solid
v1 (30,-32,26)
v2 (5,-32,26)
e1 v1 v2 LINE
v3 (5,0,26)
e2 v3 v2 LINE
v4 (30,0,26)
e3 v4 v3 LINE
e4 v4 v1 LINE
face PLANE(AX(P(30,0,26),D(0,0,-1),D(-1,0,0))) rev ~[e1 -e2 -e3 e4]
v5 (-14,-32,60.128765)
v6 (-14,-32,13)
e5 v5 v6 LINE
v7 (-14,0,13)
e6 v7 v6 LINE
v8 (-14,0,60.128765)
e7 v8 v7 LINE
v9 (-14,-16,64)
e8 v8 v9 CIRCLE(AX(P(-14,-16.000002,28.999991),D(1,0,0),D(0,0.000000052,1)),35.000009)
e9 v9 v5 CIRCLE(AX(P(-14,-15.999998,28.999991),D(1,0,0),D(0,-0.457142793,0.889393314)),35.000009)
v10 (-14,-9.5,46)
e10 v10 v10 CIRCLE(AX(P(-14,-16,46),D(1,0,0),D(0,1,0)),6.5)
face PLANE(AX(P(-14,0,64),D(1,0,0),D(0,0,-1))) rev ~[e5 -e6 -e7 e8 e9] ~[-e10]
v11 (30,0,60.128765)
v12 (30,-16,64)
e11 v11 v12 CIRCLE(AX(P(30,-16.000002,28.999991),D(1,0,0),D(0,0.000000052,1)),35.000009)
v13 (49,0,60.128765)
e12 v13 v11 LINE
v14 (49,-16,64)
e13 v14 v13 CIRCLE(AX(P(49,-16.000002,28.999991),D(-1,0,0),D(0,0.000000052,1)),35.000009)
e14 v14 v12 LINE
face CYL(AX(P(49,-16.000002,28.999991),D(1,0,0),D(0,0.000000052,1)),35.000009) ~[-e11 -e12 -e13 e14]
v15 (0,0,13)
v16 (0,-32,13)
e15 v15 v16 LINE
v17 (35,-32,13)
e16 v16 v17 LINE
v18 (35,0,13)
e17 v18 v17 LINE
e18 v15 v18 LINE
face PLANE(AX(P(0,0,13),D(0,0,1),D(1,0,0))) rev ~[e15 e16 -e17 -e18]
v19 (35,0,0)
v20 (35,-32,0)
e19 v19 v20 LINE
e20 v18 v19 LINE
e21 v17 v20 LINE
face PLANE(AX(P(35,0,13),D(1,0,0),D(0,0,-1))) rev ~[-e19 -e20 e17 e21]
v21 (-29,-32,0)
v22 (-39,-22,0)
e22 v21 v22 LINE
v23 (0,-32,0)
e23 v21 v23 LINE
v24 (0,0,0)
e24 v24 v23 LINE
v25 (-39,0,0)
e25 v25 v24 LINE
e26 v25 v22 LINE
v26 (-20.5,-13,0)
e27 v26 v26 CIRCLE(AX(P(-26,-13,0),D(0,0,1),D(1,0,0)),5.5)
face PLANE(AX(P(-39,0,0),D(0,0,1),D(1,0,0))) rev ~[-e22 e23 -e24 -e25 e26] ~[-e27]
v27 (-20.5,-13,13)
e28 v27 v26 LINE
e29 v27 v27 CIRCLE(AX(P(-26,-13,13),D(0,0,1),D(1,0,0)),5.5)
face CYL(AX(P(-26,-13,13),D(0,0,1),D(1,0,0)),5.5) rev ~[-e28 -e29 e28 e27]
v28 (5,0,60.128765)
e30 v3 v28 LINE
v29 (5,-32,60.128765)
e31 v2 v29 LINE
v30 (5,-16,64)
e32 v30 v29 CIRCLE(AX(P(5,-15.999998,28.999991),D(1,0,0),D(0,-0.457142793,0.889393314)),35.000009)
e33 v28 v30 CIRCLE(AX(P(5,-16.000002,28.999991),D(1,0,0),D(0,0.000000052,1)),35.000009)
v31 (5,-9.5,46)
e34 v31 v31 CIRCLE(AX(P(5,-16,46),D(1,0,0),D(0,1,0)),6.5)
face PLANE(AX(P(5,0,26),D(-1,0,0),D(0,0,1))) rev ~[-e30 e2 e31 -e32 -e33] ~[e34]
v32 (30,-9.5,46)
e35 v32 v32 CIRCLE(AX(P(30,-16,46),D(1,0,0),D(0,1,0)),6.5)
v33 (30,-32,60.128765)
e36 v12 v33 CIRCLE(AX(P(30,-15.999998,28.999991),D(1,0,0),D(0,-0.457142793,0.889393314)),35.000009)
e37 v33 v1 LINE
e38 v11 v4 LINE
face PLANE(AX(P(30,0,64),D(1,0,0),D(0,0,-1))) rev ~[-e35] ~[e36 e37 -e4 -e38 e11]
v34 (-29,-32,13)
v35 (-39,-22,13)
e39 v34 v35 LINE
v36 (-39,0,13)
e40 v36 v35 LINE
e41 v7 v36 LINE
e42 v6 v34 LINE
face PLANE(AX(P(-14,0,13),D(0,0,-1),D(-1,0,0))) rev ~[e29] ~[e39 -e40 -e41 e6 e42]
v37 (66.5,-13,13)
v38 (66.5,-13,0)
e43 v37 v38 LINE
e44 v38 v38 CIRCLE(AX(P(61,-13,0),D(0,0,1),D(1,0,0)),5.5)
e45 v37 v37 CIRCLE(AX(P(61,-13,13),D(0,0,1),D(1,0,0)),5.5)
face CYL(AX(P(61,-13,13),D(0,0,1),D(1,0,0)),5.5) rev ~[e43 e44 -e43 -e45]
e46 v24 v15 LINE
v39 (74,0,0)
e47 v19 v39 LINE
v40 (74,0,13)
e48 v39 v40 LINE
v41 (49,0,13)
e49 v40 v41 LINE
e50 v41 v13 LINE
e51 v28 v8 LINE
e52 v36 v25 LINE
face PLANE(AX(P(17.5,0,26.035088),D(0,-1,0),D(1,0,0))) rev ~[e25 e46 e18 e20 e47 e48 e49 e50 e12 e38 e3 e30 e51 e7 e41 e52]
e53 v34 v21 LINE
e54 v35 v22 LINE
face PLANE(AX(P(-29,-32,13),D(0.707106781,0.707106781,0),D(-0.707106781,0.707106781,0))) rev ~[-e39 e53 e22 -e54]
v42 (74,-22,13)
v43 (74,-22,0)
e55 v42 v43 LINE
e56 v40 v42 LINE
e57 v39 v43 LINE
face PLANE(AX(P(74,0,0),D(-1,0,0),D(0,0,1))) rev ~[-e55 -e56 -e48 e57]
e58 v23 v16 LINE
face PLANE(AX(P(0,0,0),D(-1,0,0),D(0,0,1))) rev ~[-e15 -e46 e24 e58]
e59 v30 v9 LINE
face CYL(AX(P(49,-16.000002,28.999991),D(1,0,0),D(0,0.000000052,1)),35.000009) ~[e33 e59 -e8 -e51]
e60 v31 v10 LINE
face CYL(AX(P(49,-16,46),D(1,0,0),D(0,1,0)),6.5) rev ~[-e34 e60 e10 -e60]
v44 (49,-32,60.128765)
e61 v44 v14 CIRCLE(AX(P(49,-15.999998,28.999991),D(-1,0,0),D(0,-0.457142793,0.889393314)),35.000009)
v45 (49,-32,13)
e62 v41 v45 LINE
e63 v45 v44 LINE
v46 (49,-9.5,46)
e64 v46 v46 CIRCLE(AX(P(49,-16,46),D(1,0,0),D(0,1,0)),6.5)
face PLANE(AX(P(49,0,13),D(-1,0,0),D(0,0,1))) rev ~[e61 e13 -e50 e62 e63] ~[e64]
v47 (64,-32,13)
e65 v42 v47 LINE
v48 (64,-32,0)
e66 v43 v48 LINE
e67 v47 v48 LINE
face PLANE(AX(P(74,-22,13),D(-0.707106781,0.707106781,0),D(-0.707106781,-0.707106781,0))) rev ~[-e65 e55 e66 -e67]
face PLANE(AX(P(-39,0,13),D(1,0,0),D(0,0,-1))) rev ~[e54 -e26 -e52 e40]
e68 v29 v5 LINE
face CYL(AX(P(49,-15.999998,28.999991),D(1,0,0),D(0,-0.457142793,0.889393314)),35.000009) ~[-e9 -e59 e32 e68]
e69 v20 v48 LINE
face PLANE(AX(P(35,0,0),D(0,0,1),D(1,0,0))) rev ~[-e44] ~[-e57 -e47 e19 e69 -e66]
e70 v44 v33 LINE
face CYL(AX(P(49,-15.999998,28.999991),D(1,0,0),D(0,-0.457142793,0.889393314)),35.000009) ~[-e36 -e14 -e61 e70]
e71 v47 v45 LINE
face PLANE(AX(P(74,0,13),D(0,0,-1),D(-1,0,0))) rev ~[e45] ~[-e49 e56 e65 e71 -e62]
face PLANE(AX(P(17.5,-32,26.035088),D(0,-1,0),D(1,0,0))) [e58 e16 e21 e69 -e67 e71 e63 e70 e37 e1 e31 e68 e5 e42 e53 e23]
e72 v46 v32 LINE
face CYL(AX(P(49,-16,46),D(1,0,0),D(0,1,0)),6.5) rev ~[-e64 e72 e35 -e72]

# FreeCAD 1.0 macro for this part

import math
import FreeCAD as App
import Part
import Sketcher
from FreeCAD import Vector

doc = App.newDocument("Part")
params = doc.addObject("Spreadsheet::Sheet", "Params")
for row, (alias, value) in enumerate([
    ("sketch1_width", "39 mm"),
    ("sketch1_width2", "35 mm"),
    ("sketch1_width3", "25 mm"),
    ("sketch1_height", "13 mm"),
    ("sketch1_height2", "51 mm"),
    ("pad1_length", "32 mm"),
    ("sketch2_width", "10 mm"),
    ("sketch3_diameter", "11 mm"),
    ("sketch4_diameter", "13 mm"),
    ("sketch5_width", "16 mm"),
    ("sketch6_width", "16 mm"),
], start=1):
    params.set(f"A{row}", alias)
    params.set(f"B{row}", "=" + value)
    params.setAlias(f"B{row}", alias)

body = doc.addObject("PartDesign::Body", "Body")

sketch1 = body.newObject("Sketcher::SketchObject", "Sketch")
sketch1.AttachmentSupport = (doc.getObject("XZ_Plane"), [""])
sketch1.MapMode = "FlatFace"
sketch1.addGeometry([
    Part.LineSegment(Vector(-39, 0, 0), Vector(0, 0, 0)),
    Part.LineSegment(Vector(0, 0, 0), Vector(0, 13, 0)),
    Part.LineSegment(Vector(0, 13, 0), Vector(35, 13, 0)),
    Part.LineSegment(Vector(35, 13, 0), Vector(35, 0, 0)),
    Part.LineSegment(Vector(35, 0, 0), Vector(74, 0, 0)),
    Part.LineSegment(Vector(74, 0, 0), Vector(74, 13, 0)),
    Part.LineSegment(Vector(74, 13, 0), Vector(49, 13, 0)),
    Part.LineSegment(Vector(49, 13, 0), Vector(49, 64, 0)),
    Part.LineSegment(Vector(49, 64, 0), Vector(30, 64, 0)),
    Part.LineSegment(Vector(30, 64, 0), Vector(30, 26, 0)),
    Part.LineSegment(Vector(30, 26, 0), Vector(5, 26, 0)),
    Part.LineSegment(Vector(5, 26, 0), Vector(5, 64, 0)),
    Part.LineSegment(Vector(5, 64, 0), Vector(-14, 64, 0)),
    Part.LineSegment(Vector(-14, 64, 0), Vector(-14, 13, 0)),
    Part.LineSegment(Vector(-14, 13, 0), Vector(-39, 13, 0)),
    Part.LineSegment(Vector(-39, 13, 0), Vector(-39, 0, 0)),
], False)
sketch1.addConstraint([
    Sketcher.Constraint("Coincident", 0, 2, 1, 1),
    Sketcher.Constraint("Coincident", 1, 2, 2, 1),
    Sketcher.Constraint("Coincident", 2, 2, 3, 1),
    Sketcher.Constraint("Coincident", 3, 2, 4, 1),
    Sketcher.Constraint("Coincident", 4, 2, 5, 1),
    Sketcher.Constraint("Coincident", 5, 2, 6, 1),
    Sketcher.Constraint("Coincident", 6, 2, 7, 1),
    Sketcher.Constraint("Coincident", 7, 2, 8, 1),
    Sketcher.Constraint("Coincident", 8, 2, 9, 1),
    Sketcher.Constraint("Coincident", 9, 2, 10, 1),
    Sketcher.Constraint("Coincident", 10, 2, 11, 1),
    Sketcher.Constraint("Coincident", 11, 2, 12, 1),
    Sketcher.Constraint("Coincident", 12, 2, 13, 1),
    Sketcher.Constraint("Coincident", 13, 2, 14, 1),
    Sketcher.Constraint("Coincident", 14, 2, 15, 1),
    Sketcher.Constraint("Coincident", 15, 2, 0, 1),
    Sketcher.Constraint("Horizontal", 0),
    Sketcher.Constraint("Vertical", 1),
    Sketcher.Constraint("Horizontal", 2),
    Sketcher.Constraint("Vertical", 3),
    Sketcher.Constraint("Horizontal", 4),
    Sketcher.Constraint("Vertical", 5),
    Sketcher.Constraint("Horizontal", 6),
    Sketcher.Constraint("Vertical", 7),
    Sketcher.Constraint("Horizontal", 8),
    Sketcher.Constraint("Vertical", 9),
    Sketcher.Constraint("Horizontal", 10),
    Sketcher.Constraint("Vertical", 11),
    Sketcher.Constraint("Horizontal", 12),
    Sketcher.Constraint("Vertical", 13),
    Sketcher.Constraint("Horizontal", 14),
    Sketcher.Constraint("Vertical", 15),
    Sketcher.Constraint("Coincident", 0, 2, -1, 1),
    Sketcher.Constraint("PointOnObject", 3, 2, -1),
    Sketcher.Constraint("Horizontal", 2, 2, 5, 2),
    Sketcher.Constraint("Horizontal", 8, 2, 11, 2),
    Sketcher.Constraint("Horizontal", 6, 2, 13, 2),
    Sketcher.Constraint("Equal", 0, 4),
    Sketcher.Constraint("Equal", 6, 10),
    Sketcher.Constraint("Equal", 8, 12),
    Sketcher.Constraint("Equal", 10, 14),
    Sketcher.Constraint("DistanceX", 0, 1, 0, 2, 39.0),
    Sketcher.Constraint("DistanceX", 2, 1, 2, 2, 35.0),
    Sketcher.Constraint("DistanceX", 6, 2, 6, 1, 25.0),
    Sketcher.Constraint("DistanceY", 1, 1, 1, 2, 13.0),
    Sketcher.Constraint("DistanceY", 7, 1, 7, 2, 51.0),
    Sketcher.Constraint("DistanceY", 9, 2, 9, 1, 38.0),
])
sketch1.setExpression("Constraints[41]", "Params.sketch1_width")
sketch1.setExpression("Constraints[42]", "Params.sketch1_width2")
sketch1.setExpression("Constraints[43]", "Params.sketch1_width3")
sketch1.setExpression("Constraints[44]", "Params.sketch1_height")
sketch1.setExpression("Constraints[45]", "Params.sketch1_height2")
pad1 = body.newObject("PartDesign::Pad", "Pad")
pad1.Profile = sketch1
pad1.setExpression("Length", "Params.pad1_length")

sketch2 = body.newObject("Sketcher::SketchObject", "Sketch001")
sketch2.AttachmentSupport = (doc.getObject("XY_Plane"), [""])
sketch2.MapMode = "FlatFace"
sketch2.AttachmentOffset = App.Placement(Vector(0, 0, 13), App.Rotation())
sketch2.addGeometry([
    Part.LineSegment(Vector(74, -22, 0), Vector(64, -32, 0)),
    Part.LineSegment(Vector(64, -32, 0), Vector(74, -32, 0)),
    Part.LineSegment(Vector(74, -32, 0), Vector(74, -22, 0)),
    Part.LineSegment(Vector(-39, -32, 0), Vector(-29, -32, 0)),
    Part.LineSegment(Vector(-29, -32, 0), Vector(-39, -22, 0)),
    Part.LineSegment(Vector(-39, -22, 0), Vector(-39, -32, 0)),
], False)
sketch2.addConstraint([
    Sketcher.Constraint("Coincident", 0, 2, 1, 1),
    Sketcher.Constraint("Coincident", 1, 2, 2, 1),
    Sketcher.Constraint("Coincident", 2, 2, 0, 1),
    Sketcher.Constraint("Coincident", 3, 2, 4, 1),
    Sketcher.Constraint("Coincident", 4, 2, 5, 1),
    Sketcher.Constraint("Coincident", 5, 2, 3, 1),
    Sketcher.Constraint("Horizontal", 1),
    Sketcher.Constraint("Vertical", 2),
    Sketcher.Constraint("Horizontal", 3),
    Sketcher.Constraint("Vertical", 5),
    Sketcher.Constraint("Perpendicular", 0, 4),
    Sketcher.Constraint("Horizontal", 1, 2, 3, 2),
    Sketcher.Constraint("Horizontal", 2, 2, 4, 2),
    Sketcher.Constraint("Equal", 1, 3),
    Sketcher.Constraint("DistanceX", 1, 1, 1, 2, 10.0),
    Sketcher.Constraint("DistanceX", -1, 1, 0, 2, 64.0),
    Sketcher.Constraint("DistanceY", 0, 2, -1, 1, 32.0),
    Sketcher.Constraint("DistanceX", 3, 2, -1, 1, 29.0),
])
sketch2.setExpression("Constraints[14]", "Params.sketch2_width")
pocket1 = body.newObject("PartDesign::Pocket", "Pocket")
pocket1.Profile = sketch2
pocket1.Type = "ThroughAll"

sketch3 = body.newObject("Sketcher::SketchObject", "Sketch002")
sketch3.AttachmentSupport = (doc.getObject("XY_Plane"), [""])
sketch3.MapMode = "FlatFace"
sketch3.AttachmentOffset = App.Placement(Vector(0, 0, 13), App.Rotation())
sketch3.addGeometry([
    Part.Circle(Vector(-26, -13, 0), Vector(0, 0, 1), 6),
    Part.Circle(Vector(61, -13, 0), Vector(0, 0, 1), 6),
], False)
sketch3.addConstraint([
    Sketcher.Constraint("Equal", 0, 1),
    Sketcher.Constraint("Horizontal", 0, 3, 1, 3),
    Sketcher.Constraint("Diameter", 0, 11.0),
    Sketcher.Constraint("DistanceX", 0, 3, -1, 1, 26.0),
    Sketcher.Constraint("DistanceY", 0, 3, -1, 1, 13.0),
    Sketcher.Constraint("DistanceX", -1, 1, 1, 3, 61.0),
])
sketch3.setExpression("Constraints[2]", "Params.sketch3_diameter")
pocket2 = body.newObject("PartDesign::Pocket", "Pocket001")
pocket2.Profile = sketch3
pocket2.Type = "ThroughAll"

sketch4 = body.newObject("Sketcher::SketchObject", "Sketch003")
sketch4.AttachmentSupport = (doc.getObject("YZ_Plane"), [""])
sketch4.MapMode = "FlatFace"
sketch4.AttachmentOffset = App.Placement(Vector(0, 0, 49), App.Rotation())
sketch4.addGeometry(Part.Circle(Vector(-16, 46, 0), Vector(0, 0, 1), 6), False)
sketch4.addConstraint([
    Sketcher.Constraint("Diameter", 0, 13.0),
    Sketcher.Constraint("DistanceX", 0, 3, -1, 1, 16.0),
    Sketcher.Constraint("DistanceY", -1, 1, 0, 3, 46.0),
])
sketch4.setExpression("Constraints[0]", "Params.sketch4_diameter")
pocket3 = body.newObject("PartDesign::Pocket", "Pocket002")
pocket3.Profile = sketch4
pocket3.Type = "ThroughAll"

sketch5 = body.newObject("Sketcher::SketchObject", "Sketch004")
sketch5.AttachmentSupport = (doc.getObject("YZ_Plane"), [""])
sketch5.MapMode = "FlatFace"
sketch5.AttachmentOffset = App.Placement(Vector(0, 0, 49), App.Rotation())
sketch5.addGeometry([
    Part.ArcOfCircle(Part.Circle(Vector(-16, 29, 0), Vector(0, 0, 1), 35), math.radians(90), math.radians(117)),
    Part.LineSegment(Vector(-16, 64, 0), Vector(-32, 64, 0)),
    Part.LineSegment(Vector(-32, 64, 0), Vector(-32, 60.1, 0)),
    Part.ArcOfCircle(Part.Circle(Vector(-16, 29, 0), Vector(0, 0, 1), 35), math.radians(63), math.radians(90)),
    Part.LineSegment(Vector(0, 60.1, 0), Vector(0, 64, 0)),
    Part.LineSegment(Vector(0, 64, 0), Vector(-16, 64, 0)),
], False)
sketch5.addConstraint([
    Sketcher.Constraint("Tangent", 0, 1, 1, 1),
    Sketcher.Constraint("Coincident", 1, 2, 2, 1),
    Sketcher.Constraint("Coincident", 2, 2, 0, 2),
    Sketcher.Constraint("Coincident", 3, 1, 4, 1),
    Sketcher.Constraint("Coincident", 4, 2, 5, 1),
    Sketcher.Constraint("Tangent", 5, 2, 3, 2),
    Sketcher.Constraint("Horizontal", 1),
    Sketcher.Constraint("Vertical", 2),
    Sketcher.Constraint("Vertical", 4),
    Sketcher.Constraint("Horizontal", 5),
    Sketcher.Constraint("Coincident", 3, 3, 0, 3),
    Sketcher.Constraint("Equal", 0, 3),
    Sketcher.Constraint("PointOnObject", 3, 1, -2),
    Sketcher.Constraint("Horizontal", 2, 2, 3, 1),
    Sketcher.Constraint("DistanceX", 1, 2, 1, 1, 16.0),
    Sketcher.Constraint("DistanceY", -1, 1, 0, 1, 64.0),
    Sketcher.Constraint("Radius", 0, 35.000009),
])
sketch5.setExpression("Constraints[14]", "Params.sketch5_width")
pocket4 = body.newObject("PartDesign::Pocket", "Pocket003")
pocket4.Profile = sketch5
pocket4.Type = "ThroughAll"

sketch6 = body.newObject("Sketcher::SketchObject", "Sketch005")
sketch6.AttachmentSupport = (doc.getObject("YZ_Plane"), [""])
sketch6.MapMode = "FlatFace"
sketch6.AttachmentOffset = App.Placement(Vector(0, 0, 49), App.Rotation())
sketch6.addGeometry([
    Part.ArcOfCircle(Part.Circle(Vector(-16, 29, 0), Vector(0, 0, 1), 35), math.radians(90), math.radians(117)),
    Part.LineSegment(Vector(-16, 64, 0), Vector(-32, 64, 0)),
    Part.LineSegment(Vector(-32, 64, 0), Vector(-32, 60.1, 0)),
    Part.ArcOfCircle(Part.Circle(Vector(-16, 29, 0), Vector(0, 0, 1), 35), math.radians(63), math.radians(90)),
    Part.LineSegment(Vector(0, 60.1, 0), Vector(0, 64, 0)),
    Part.LineSegment(Vector(0, 64, 0), Vector(-16, 64, 0)),
], False)
sketch6.addConstraint([
    Sketcher.Constraint("Tangent", 0, 1, 1, 1),
    Sketcher.Constraint("Coincident", 1, 2, 2, 1),
    Sketcher.Constraint("Coincident", 2, 2, 0, 2),
    Sketcher.Constraint("Coincident", 3, 1, 4, 1),
    Sketcher.Constraint("Coincident", 4, 2, 5, 1),
    Sketcher.Constraint("Tangent", 5, 2, 3, 2),
    Sketcher.Constraint("Horizontal", 1),
    Sketcher.Constraint("Vertical", 2),
    Sketcher.Constraint("Vertical", 4),
    Sketcher.Constraint("Horizontal", 5),
    Sketcher.Constraint("Coincident", 3, 3, 0, 3),
    Sketcher.Constraint("Equal", 0, 3),
    Sketcher.Constraint("PointOnObject", 3, 1, -2),
    Sketcher.Constraint("Horizontal", 2, 2, 3, 1),
    Sketcher.Constraint("DistanceX", 1, 2, 1, 1, 16.0),
    Sketcher.Constraint("DistanceY", -1, 1, 0, 1, 64.0),
    Sketcher.Constraint("Radius", 0, 35.000009),
])
sketch6.setExpression("Constraints[14]", "Params.sketch6_width")
pocket5 = body.newObject("PartDesign::Pocket", "Pocket004")
pocket5.Profile = sketch6
pocket5.Type = "ThroughAll"

doc.recompute()
